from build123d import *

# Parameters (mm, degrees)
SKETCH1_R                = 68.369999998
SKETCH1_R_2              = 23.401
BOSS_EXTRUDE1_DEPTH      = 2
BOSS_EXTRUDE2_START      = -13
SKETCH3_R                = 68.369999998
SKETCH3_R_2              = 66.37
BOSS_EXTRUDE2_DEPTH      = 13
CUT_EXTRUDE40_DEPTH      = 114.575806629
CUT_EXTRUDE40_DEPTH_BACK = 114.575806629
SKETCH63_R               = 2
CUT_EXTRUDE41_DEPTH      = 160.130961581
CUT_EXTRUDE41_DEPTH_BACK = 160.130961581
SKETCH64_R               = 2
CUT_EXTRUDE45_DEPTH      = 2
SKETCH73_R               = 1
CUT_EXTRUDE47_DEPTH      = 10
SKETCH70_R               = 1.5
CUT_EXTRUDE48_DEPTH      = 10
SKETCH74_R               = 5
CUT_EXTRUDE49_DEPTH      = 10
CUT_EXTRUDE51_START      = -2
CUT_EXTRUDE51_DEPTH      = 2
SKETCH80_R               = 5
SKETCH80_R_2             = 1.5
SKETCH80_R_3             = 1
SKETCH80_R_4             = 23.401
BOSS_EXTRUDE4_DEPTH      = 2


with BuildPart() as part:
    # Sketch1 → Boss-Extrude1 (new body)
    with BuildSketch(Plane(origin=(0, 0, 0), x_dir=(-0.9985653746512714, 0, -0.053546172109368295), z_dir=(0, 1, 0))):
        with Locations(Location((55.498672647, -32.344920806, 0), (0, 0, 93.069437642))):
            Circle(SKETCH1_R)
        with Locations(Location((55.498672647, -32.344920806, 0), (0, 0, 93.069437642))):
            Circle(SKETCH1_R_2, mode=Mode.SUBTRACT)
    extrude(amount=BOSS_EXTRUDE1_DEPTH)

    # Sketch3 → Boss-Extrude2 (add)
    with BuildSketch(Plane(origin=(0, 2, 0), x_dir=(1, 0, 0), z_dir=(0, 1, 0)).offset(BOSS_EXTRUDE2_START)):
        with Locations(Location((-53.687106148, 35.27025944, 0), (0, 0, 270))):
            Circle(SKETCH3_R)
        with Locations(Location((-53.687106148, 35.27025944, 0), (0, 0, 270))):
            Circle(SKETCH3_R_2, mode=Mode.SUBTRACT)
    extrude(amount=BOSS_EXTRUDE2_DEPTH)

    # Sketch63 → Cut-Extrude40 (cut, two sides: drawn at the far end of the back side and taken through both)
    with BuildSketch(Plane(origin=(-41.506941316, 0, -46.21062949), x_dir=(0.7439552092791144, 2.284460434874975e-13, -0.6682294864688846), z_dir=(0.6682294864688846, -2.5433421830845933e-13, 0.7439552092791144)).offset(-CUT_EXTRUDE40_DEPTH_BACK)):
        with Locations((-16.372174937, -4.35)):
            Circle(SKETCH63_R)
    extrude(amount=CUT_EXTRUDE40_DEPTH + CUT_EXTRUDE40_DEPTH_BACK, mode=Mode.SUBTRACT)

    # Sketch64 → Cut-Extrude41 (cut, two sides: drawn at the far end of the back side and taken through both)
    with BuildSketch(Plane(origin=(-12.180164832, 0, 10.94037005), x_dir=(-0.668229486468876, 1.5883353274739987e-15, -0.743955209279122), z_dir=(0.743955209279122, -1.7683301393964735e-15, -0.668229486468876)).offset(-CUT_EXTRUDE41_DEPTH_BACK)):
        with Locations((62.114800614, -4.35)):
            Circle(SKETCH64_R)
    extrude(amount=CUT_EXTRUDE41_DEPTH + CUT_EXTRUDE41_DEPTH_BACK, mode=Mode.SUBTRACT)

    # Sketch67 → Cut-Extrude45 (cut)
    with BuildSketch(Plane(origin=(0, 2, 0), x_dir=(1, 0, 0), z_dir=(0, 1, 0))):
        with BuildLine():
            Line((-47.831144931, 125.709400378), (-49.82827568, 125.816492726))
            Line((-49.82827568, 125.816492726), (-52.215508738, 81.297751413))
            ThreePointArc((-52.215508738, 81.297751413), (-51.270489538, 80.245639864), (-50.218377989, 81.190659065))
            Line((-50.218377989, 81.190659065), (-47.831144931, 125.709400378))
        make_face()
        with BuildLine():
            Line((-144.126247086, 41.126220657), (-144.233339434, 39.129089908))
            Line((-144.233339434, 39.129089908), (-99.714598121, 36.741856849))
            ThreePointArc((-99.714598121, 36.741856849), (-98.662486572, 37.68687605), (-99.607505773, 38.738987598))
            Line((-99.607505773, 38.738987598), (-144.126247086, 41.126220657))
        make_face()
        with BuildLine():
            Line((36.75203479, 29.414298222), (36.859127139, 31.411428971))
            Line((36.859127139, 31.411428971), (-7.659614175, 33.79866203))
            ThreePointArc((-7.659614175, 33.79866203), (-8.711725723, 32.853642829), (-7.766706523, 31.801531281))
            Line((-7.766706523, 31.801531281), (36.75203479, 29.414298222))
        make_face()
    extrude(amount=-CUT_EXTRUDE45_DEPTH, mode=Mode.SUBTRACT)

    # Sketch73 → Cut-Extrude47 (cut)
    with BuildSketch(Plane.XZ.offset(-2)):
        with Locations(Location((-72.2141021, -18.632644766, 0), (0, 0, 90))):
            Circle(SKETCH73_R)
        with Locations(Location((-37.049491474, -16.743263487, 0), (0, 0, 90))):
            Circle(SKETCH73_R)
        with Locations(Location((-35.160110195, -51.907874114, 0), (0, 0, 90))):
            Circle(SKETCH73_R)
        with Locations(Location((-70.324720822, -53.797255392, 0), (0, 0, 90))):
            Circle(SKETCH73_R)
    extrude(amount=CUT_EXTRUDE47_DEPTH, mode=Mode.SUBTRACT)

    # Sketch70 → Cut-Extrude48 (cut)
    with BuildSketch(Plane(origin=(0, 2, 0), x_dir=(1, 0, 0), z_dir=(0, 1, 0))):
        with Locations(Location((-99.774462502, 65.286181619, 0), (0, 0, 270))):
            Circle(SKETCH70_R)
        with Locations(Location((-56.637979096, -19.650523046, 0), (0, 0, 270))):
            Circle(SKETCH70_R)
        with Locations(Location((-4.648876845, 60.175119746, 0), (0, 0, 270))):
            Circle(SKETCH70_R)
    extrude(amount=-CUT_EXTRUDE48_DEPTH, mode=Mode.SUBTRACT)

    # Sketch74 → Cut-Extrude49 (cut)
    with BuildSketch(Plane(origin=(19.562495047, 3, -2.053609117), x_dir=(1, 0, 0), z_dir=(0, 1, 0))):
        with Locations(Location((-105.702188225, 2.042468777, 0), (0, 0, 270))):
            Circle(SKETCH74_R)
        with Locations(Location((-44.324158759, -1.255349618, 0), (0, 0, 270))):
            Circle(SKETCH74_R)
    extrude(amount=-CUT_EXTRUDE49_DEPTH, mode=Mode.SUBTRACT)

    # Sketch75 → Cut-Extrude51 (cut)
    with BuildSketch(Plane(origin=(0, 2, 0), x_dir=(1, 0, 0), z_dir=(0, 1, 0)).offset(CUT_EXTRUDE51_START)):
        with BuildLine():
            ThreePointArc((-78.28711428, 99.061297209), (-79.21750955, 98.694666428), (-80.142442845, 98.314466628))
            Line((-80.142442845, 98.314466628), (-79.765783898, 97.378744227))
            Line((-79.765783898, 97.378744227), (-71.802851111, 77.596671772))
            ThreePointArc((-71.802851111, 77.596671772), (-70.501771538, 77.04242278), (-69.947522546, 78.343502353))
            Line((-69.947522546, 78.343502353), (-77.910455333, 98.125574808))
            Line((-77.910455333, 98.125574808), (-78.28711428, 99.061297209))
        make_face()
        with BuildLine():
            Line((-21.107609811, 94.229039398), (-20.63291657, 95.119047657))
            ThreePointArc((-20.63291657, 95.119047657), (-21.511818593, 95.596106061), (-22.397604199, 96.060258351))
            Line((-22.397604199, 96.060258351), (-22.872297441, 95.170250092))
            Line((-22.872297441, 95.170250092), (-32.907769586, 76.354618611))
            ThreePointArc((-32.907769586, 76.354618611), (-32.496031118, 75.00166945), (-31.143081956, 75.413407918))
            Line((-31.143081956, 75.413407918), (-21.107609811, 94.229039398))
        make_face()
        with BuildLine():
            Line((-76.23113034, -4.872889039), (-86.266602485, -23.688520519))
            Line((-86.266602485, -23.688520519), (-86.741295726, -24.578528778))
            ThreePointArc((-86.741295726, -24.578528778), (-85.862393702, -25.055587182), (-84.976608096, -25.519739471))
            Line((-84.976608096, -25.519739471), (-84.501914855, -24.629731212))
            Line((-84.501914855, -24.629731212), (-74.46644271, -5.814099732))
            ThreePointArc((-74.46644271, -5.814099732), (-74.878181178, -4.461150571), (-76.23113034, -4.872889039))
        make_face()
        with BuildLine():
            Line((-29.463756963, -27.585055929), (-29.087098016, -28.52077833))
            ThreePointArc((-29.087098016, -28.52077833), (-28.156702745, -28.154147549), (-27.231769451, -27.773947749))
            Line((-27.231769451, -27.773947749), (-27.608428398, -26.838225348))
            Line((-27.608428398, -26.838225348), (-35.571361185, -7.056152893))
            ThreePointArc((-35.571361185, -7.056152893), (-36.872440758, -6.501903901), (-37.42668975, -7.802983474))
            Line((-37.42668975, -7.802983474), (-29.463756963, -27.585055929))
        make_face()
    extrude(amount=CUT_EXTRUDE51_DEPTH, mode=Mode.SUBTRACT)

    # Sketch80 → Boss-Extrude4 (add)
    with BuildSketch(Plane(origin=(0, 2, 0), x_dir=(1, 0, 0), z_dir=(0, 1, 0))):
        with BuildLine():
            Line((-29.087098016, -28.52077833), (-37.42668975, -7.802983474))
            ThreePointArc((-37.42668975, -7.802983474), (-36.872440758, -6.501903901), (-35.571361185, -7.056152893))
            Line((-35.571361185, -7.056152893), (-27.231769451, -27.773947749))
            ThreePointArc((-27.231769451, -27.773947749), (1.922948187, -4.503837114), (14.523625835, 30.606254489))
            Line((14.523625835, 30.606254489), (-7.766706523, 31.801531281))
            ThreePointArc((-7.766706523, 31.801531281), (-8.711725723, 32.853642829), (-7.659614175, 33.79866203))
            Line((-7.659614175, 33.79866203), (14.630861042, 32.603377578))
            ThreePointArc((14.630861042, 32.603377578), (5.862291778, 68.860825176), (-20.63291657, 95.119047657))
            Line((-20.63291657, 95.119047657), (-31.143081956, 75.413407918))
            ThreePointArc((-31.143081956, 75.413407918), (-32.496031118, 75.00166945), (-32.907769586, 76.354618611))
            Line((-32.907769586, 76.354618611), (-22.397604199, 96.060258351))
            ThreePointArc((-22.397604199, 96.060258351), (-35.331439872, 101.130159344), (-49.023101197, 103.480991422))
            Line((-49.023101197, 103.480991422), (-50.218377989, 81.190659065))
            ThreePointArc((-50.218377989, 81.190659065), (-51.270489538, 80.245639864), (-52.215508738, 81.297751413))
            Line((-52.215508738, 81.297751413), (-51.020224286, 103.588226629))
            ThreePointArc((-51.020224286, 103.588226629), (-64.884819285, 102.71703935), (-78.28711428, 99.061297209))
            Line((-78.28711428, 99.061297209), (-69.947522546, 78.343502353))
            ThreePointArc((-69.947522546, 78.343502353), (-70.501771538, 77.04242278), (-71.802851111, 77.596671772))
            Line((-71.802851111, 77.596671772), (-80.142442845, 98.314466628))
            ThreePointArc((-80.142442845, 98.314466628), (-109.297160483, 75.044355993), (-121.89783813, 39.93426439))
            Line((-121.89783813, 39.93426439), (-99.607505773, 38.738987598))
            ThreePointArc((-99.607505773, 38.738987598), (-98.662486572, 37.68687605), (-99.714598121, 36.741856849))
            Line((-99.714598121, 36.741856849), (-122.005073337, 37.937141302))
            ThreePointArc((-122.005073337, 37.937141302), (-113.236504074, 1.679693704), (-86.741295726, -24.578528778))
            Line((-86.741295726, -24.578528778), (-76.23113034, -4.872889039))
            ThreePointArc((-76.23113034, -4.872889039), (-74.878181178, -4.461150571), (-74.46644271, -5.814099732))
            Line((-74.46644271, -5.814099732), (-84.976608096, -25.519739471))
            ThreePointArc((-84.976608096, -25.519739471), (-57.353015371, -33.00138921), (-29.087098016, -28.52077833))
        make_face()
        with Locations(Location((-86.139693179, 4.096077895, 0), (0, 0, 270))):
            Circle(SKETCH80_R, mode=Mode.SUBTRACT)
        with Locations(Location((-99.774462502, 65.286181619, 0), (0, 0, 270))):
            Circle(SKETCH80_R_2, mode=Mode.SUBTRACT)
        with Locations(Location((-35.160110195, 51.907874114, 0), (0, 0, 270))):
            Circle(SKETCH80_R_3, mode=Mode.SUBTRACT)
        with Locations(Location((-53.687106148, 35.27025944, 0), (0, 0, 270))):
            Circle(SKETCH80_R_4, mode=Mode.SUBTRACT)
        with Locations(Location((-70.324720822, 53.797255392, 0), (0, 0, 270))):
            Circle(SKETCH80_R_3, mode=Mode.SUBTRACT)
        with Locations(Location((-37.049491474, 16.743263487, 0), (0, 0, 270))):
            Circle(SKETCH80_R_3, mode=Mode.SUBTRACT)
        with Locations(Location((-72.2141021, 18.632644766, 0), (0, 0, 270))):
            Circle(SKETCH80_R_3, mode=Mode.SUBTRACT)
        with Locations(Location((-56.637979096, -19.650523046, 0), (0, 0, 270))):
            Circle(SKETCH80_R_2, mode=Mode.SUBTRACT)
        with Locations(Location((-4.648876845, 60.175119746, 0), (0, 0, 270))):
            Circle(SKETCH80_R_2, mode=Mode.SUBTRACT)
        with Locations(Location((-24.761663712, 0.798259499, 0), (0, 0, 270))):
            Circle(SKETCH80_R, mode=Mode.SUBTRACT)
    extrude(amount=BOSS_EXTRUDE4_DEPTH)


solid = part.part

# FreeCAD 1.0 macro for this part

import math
import FreeCAD as App
import Part
import Sketcher
Q = App.Units.Quantity

doc = App.newDocument("Part")
params = doc.addObject("Spreadsheet::Sheet", "Params")
for row, (alias, value) in enumerate([
    ("sketch1_diameter", "136.74 mm"),
    ("pad1_length", "2 mm"),
    ("sketch2_diameter", "136.74 mm"),
    ("sketch2_diameter2", "132.74 mm"),
    ("pad2_length", "13 mm"),
    ("sketch3_diameter", "4 mm"),
    ("sketch4_diameter", "4 mm"),
    ("sketch5_radius", "1 mm"),
    ("pocket3_length", "2 mm"),
    ("sketch6_diameter", "2 mm"),
    ("pocket4_length", "10 mm"),
    ("sketch7_diameter", "3 mm"),
    ("pocket5_length", "10 mm"),
    ("sketch8_diameter", "10 mm"),
    ("pocket6_length", "10 mm"),
    ("sketch9_radius", "1 mm"),
    ("sketch9_radius2", "1 mm"),
    ("sketch9_radius3", "1 mm"),
    ("sketch9_radius4", "1 mm"),
    ("sketch9_radius5", "68.369998 mm"),
    ("pocket7_length", "2 mm"),
    ("sketch10_diameter", "3 mm"),
    ("sketch10_diameter2", "10 mm"),
    ("sketch10_diameter3", "2 mm"),
    ("sketch10_radius", "68.37 mm"),
    ("pad3_length", "2 mm"),
], start=1):
    params.set(f"A{row}", alias)
    params.set(f"B{row}", "=" + value)
    params.setAlias(f"B{row}", alias)

body = doc.addObject("PartDesign::Body", "Body")

# Sketch on XZ plane
sketch1 = body.newObject("Sketcher::SketchObject", "Sketch")
sketch1.AttachmentSupport = (doc.getObject("XZ_Plane"), [""])
sketch1.MapMode = "FlatFace"
sketch1.addGeometry(Part.Circle(App.Vector(-53.687106, -35.270259, 0), App.Vector(0, 0, 1), 68.37), False)
sketch1.addGeometry(Part.Circle(App.Vector(-53.687106, -35.270259, 0), App.Vector(0, 0, 1), 23.401), False)
sketch1.addConstraint(Sketcher.Constraint("Coincident", 1, 3, 0, 3))
sketch1.addConstraint(Sketcher.Constraint("Diameter", 0, Q("136.74 mm")))
sketch1.addConstraint(Sketcher.Constraint("Diameter", 1, Q("46.802 mm")))
sketch1.addConstraint(Sketcher.Constraint("DistanceY", 0, 3, -1, 1, Q("35.270259 mm")))
sketch1.addConstraint(Sketcher.Constraint("DistanceX", 0, 3, -1, 1, Q("53.687106 mm")))
sketch1.setExpression("Constraints[1]", "Params.sketch1_diameter")
pad1 = body.newObject("PartDesign::Pad", "Pad")
pad1.Profile = sketch1
pad1.setExpression("Length", "Params.pad1_length")
pad1.Reversed = True

# Sketch on XZ plane
sketch2 = body.newObject("Sketcher::SketchObject", "Sketch001")
sketch2.AttachmentSupport = (doc.getObject("XZ_Plane"), [""])
sketch2.MapMode = "FlatFace"
sketch2.AttachmentOffset = App.Placement(App.Vector(0, 0, 11), App.Rotation())
sketch2.addGeometry(Part.Circle(App.Vector(-53.687106, -35.270259, 0), App.Vector(0, 0, 1), 68.37), False)
sketch2.addGeometry(Part.Circle(App.Vector(-53.687106, -35.270259, 0), App.Vector(0, 0, 1), 66.37), False)
sketch2.addConstraint(Sketcher.Constraint("Coincident", 1, 3, 0, 3))
sketch2.addConstraint(Sketcher.Constraint("Diameter", 0, Q("136.74 mm")))
sketch2.addConstraint(Sketcher.Constraint("Diameter", 1, Q("132.74 mm")))
sketch2.addConstraint(Sketcher.Constraint("DistanceY", 0, 3, -1, 1, Q("35.270259 mm")))
sketch2.addConstraint(Sketcher.Constraint("DistanceX", 0, 3, -1, 1, Q("53.687106 mm")))
sketch2.setExpression("Constraints[1]", "Params.sketch2_diameter")
sketch2.setExpression("Constraints[2]", "Params.sketch2_diameter2")
pad2 = body.newObject("PartDesign::Pad", "Pad001")
pad2.Profile = sketch2
pad2.setExpression("Length", "Params.pad2_length")
pad2.Reversed = True

# Sketch on an angled plane
sketch3 = body.newObject("Sketcher::SketchObject", "Sketch002")
sketch3.Placement = App.Placement(App.Vector(-41.506941, 0, -46.21063), App.Rotation(App.Vector(0.743955209, 0, -0.668229486), App.Vector(0, 0.999999999, 0), App.Vector(0.668229486, 0, 0.743955209), "ZXY"))
sketch3.addGeometry(Part.Circle(App.Vector(-16.372175, -4.35, 0), App.Vector(0, 0, 1), 2), False)
sketch3.addConstraint(Sketcher.Constraint("Diameter", 0, Q("4 mm")))
sketch3.addConstraint(Sketcher.Constraint("DistanceY", 0, 3, -1, 1, Q("4.35 mm")))
sketch3.addConstraint(Sketcher.Constraint("DistanceX", 0, 3, -1, 1, Q("16.372175 mm")))
sketch3.setExpression("Constraints[0]", "Params.sketch3_diameter")
pocket1 = body.newObject("PartDesign::Pocket", "Pocket")
pocket1.Profile = sketch3
pocket1.Type = "ThroughAll"
pocket1.Midplane = True

# Sketch on an angled plane
sketch4 = body.newObject("Sketcher::SketchObject", "Sketch003")
sketch4.Placement = App.Placement(App.Vector(-12.180165, 0, 10.94037), App.Rotation(App.Vector(-0.668229486, 0, -0.743955209), App.Vector(0, 0.999999999, 0), App.Vector(0.743955209, 0, -0.668229486), "ZXY"))
sketch4.addGeometry(Part.Circle(App.Vector(62.114801, -4.35, 0), App.Vector(0, 0, 1), 2), False)
sketch4.addConstraint(Sketcher.Constraint("Diameter", 0, Q("4 mm")))
sketch4.addConstraint(Sketcher.Constraint("DistanceY", 0, 3, -1, 1, Q("4.35 mm")))
sketch4.addConstraint(Sketcher.Constraint("DistanceX", -1, 1, 0, 3, Q("62.114801 mm")))
sketch4.setExpression("Constraints[0]", "Params.sketch4_diameter")
pocket2 = body.newObject("PartDesign::Pocket", "Pocket001")
pocket2.Profile = sketch4
pocket2.Type = "ThroughAll"
pocket2.Midplane = True

# Sketch on XZ plane
sketch5 = body.newObject("Sketcher::SketchObject", "Sketch004")
sketch5.AttachmentSupport = (doc.getObject("XZ_Plane"), [""])
sketch5.MapMode = "FlatFace"
sketch5.AttachmentOffset = App.Placement(App.Vector(0, 0, -2), App.Rotation())
sketch5.addGeometry(Part.LineSegment(App.Vector(-47.831145, -125.7094, 0), App.Vector(-49.828276, -125.816493, 0)), False)
sketch5.addGeometry(Part.LineSegment(App.Vector(-49.828276, -125.816493, 0), App.Vector(-52.215509, -81.297751, 0)), False)
sketch5.addGeometry(Part.ArcOfCircle(Part.Circle(App.Vector(-51.216943, -81.244205, 0), App.Vector(0, 0, 1), 1), math.radians(3.069438), math.radians(183.069438)), False)
sketch5.addGeometry(Part.LineSegment(App.Vector(-50.218378, -81.190659, 0), App.Vector(-47.831145, -125.7094, 0)), False)
sketch5.addGeometry(Part.LineSegment(App.Vector(-144.126247, -41.126221, 0), App.Vector(-144.233339, -39.12909, 0)), False)
sketch5.addGeometry(Part.LineSegment(App.Vector(-144.233339, -39.12909, 0), App.Vector(-99.714598, -36.741857, 0)), False)
sketch5.addGeometry(Part.ArcOfCircle(Part.Circle(App.Vector(-99.661052, -37.740422, 0), App.Vector(0, 0, 1), 1), math.radians(-86.930562), math.radians(93.069438)), False)
sketch5.addGeometry(Part.LineSegment(App.Vector(-99.607506, -38.738988, 0), App.Vector(-144.126247, -41.126221, 0)), False)
sketch5.addGeometry(Part.LineSegment(App.Vector(36.752035, -29.414298, 0), App.Vector(36.859127, -31.411429, 0)), False)
sketch5.addGeometry(Part.LineSegment(App.Vector(36.859127, -31.411429, 0), App.Vector(-7.659614, -33.798662, 0)), False)
sketch5.addGeometry(Part.ArcOfCircle(Part.Circle(App.Vector(-7.71316, -32.800097, 0), App.Vector(0, 0, 1), 1), math.radians(93.069438), math.radians(273.069438)), False)
sketch5.addGeometry(Part.LineSegment(App.Vector(-7.766707, -31.801531, 0), App.Vector(36.752035, -29.414298, 0)), False)
sketch5.addConstraint(Sketcher.Constraint("Coincident", 0, 2, 1, 1))
sketch5.addConstraint(Sketcher.Constraint("Tangent", 1, 2, 2, 2))
sketch5.addConstraint(Sketcher.Constraint("Tangent", 2, 1, 3, 1))
sketch5.addConstraint(Sketcher.Constraint("Coincident", 3, 2, 0, 1))
sketch5.addConstraint(Sketcher.Constraint("Coincident", 4, 2, 5, 1))
sketch5.addConstraint(Sketcher.Constraint("Tangent", 5, 2, 6, 2))
sketch5.addConstraint(Sketcher.Constraint("Tangent", 6, 1, 7, 1))
sketch5.addConstraint(Sketcher.Constraint("Coincident", 7, 2, 4, 1))
sketch5.addConstraint(Sketcher.Constraint("Coincident", 8, 2, 9, 1))
sketch5.addConstraint(Sketcher.Constraint("Tangent", 9, 2, 10, 2))
sketch5.addConstraint(Sketcher.Constraint("Tangent", 10, 1, 11, 1))
sketch5.addConstraint(Sketcher.Constraint("Coincident", 11, 2, 8, 1))
sketch5.addConstraint(Sketcher.Constraint("Equal", 2, 6))
sketch5.addConstraint(Sketcher.Constraint("Equal", 6, 10))
sketch5.addConstraint(Sketcher.Constraint("Perpendicular", 0, 1))
sketch5.addConstraint(Sketcher.Constraint("Parallel", 1, 3))
sketch5.addConstraint(Sketcher.Constraint("Parallel", 3, 4))
sketch5.addConstraint(Sketcher.Constraint("Perpendicular", 4, 5))
sketch5.addConstraint(Sketcher.Constraint("Parallel", 5, 7))
sketch5.addConstraint(Sketcher.Constraint("Perpendicular", 7, 8))
sketch5.addConstraint(Sketcher.Constraint("Perpendicular", 8, 9))
sketch5.addConstraint(Sketcher.Constraint("Parallel", 9, 11))
sketch5.addConstraint(Sketcher.Constraint("Equal", 3, 5))
sketch5.addConstraint(Sketcher.Constraint("Equal", 7, 9))
sketch5.addConstraint(Sketcher.Constraint("Radius", 2, Q("1 mm")))
sketch5.addConstraint(Sketcher.Constraint("Distance", 1, Q("44.582701 mm")))
sketch5.addConstraint(Sketcher.Constraint("DistanceY", 3, 2, -1, 1, Q("125.7094 mm")))
sketch5.addConstraint(Sketcher.Constraint("DistanceX", 5, 2, -1, 1, Q("99.714598 mm")))
sketch5.addConstraint(Sketcher.Constraint("DistanceY", 11, 2, -1, 1, Q("29.414298 mm")))
sketch5.addConstraint(Sketcher.Constraint("DistanceX", 2, 3, 3, 2, Q("3.385798 mm")))
sketch5.addConstraint(Sketcher.Constraint("DistanceX", 10, 3, -1, 1, Q("7.71316 mm")))
sketch5.addConstraint(Sketcher.Constraint("DistanceX", 1, 2, -1, 1, Q("52.215509 mm")))
sketch5.addConstraint(Sketcher.Constraint("DistanceY", 4, 2, -1, 1, Q("39.12909 mm")))
sketch5.setExpression("Constraints[24]", "Params.sketch5_radius")
pocket3 = body.newObject("PartDesign::Pocket", "Pocket002")
pocket3.Profile = sketch5
pocket3.setExpression("Length", "Params.pocket3_length")
pocket3.Reversed = True

# Sketch on XZ plane
sketch6 = body.newObject("Sketcher::SketchObject", "Sketch005")
sketch6.AttachmentSupport = (doc.getObject("XZ_Plane"), [""])
sketch6.MapMode = "FlatFace"
sketch6.AttachmentOffset = App.Placement(App.Vector(0, 0, -2), App.Rotation())
sketch6.addGeometry(Part.Circle(App.Vector(-72.214102, -18.632645, 0), App.Vector(0, 0, 1), 1), False)
sketch6.addGeometry(Part.Circle(App.Vector(-37.049491, -16.743263, 0), App.Vector(0, 0, 1), 1), False)
sketch6.addGeometry(Part.Circle(App.Vector(-35.16011, -51.907874, 0), App.Vector(0, 0, 1), 1), False)
sketch6.addGeometry(Part.Circle(App.Vector(-70.324721, -53.797255, 0), App.Vector(0, 0, 1), 1), False)
sketch6.addConstraint(Sketcher.Constraint("Equal", 0, 1))
sketch6.addConstraint(Sketcher.Constraint("Equal", 1, 2))
sketch6.addConstraint(Sketcher.Constraint("Equal", 2, 3))
sketch6.addConstraint(Sketcher.Constraint("Diameter", 0, Q("2 mm")))
sketch6.addConstraint(Sketcher.Constraint("DistanceX", 1, 3, -1, 1, Q("37.049491 mm")))
sketch6.addConstraint(Sketcher.Constraint("DistanceX", 2, 3, -1, 1, Q("35.16011 mm")))
sketch6.addConstraint(Sketcher.Constraint("DistanceX", 3, 3, -1, 1, Q("70.324721 mm")))
sketch6.addConstraint(Sketcher.Constraint("DistanceX", 0, 3, 1, 3, Q("35.164611 mm")))
sketch6.addConstraint(Sketcher.Constraint("DistanceY", 0, 3, 1, 3, Q("1.889381 mm")))
sketch6.addConstraint(Sketcher.Constraint("DistanceY", 2, 3, 1, 3, Q("35.164611 mm")))
sketch6.addConstraint(Sketcher.Constraint("DistanceY", 3, 3, 0, 3, Q("35.164611 mm")))
sketch6.addConstraint(Sketcher.Constraint("DistanceY", 0, 3, -1, 1, Q("18.632645 mm")))
sketch6.setExpression("Constraints[3]", "Params.sketch6_diameter")
pocket4 = body.newObject("PartDesign::Pocket", "Pocket003")
pocket4.Profile = sketch6
pocket4.setExpression("Length", "Params.pocket4_length")
pocket4.Reversed = True

# Sketch on XZ plane
sketch7 = body.newObject("Sketcher::SketchObject", "Sketch006")
sketch7.AttachmentSupport = (doc.getObject("XZ_Plane"), [""])
sketch7.MapMode = "FlatFace"
sketch7.AttachmentOffset = App.Placement(App.Vector(0, 0, -2), App.Rotation())
sketch7.addGeometry(Part.Circle(App.Vector(-99.774463, -65.286182, 0), App.Vector(0, 0, 1), 1.5), False)
sketch7.addGeometry(Part.Circle(App.Vector(-56.637979, 19.650523, 0), App.Vector(0, 0, 1), 1.5), False)
sketch7.addGeometry(Part.Circle(App.Vector(-4.648877, -60.17512, 0), App.Vector(0, 0, 1), 1.5), False)
sketch7.addConstraint(Sketcher.Constraint("Equal", 0, 1))
sketch7.addConstraint(Sketcher.Constraint("Equal", 1, 2))
sketch7.addConstraint(Sketcher.Constraint("Diameter", 0, Q("3 mm")))
sketch7.addConstraint(Sketcher.Constraint("DistanceY", 0, 3, -1, 1, Q("65.286182 mm")))
sketch7.addConstraint(Sketcher.Constraint("DistanceX", 1, 3, -1, 1, Q("56.637979 mm")))
sketch7.addConstraint(Sketcher.Constraint("DistanceY", 2, 3, -1, 1, Q("60.17512 mm")))
sketch7.addConstraint(Sketcher.Constraint("DistanceX", 0, 3, -1, 1, Q("99.774463 mm")))
sketch7.addConstraint(Sketcher.Constraint("DistanceY", -1, 1, 1, 3, Q("19.650523 mm")))
sketch7.addConstraint(Sketcher.Constraint("DistanceX", 2, 3, -1, 1, Q("4.648877 mm")))
sketch7.setExpression("Constraints[2]", "Params.sketch7_diameter")
pocket5 = body.newObject("PartDesign::Pocket", "Pocket004")
pocket5.Profile = sketch7
pocket5.setExpression("Length", "Params.pocket5_length")
pocket5.Reversed = True

# Sketch on XZ plane
sketch8 = body.newObject("Sketcher::SketchObject", "Sketch007")
sketch8.AttachmentSupport = (doc.getObject("XZ_Plane"), [""])
sketch8.MapMode = "FlatFace"
sketch8.AttachmentOffset = App.Placement(App.Vector(0, 0, -3), App.Rotation())
sketch8.addGeometry(Part.Circle(App.Vector(-86.139693, -4.096078, 0), App.Vector(0, 0, 1), 5), False)
sketch8.addGeometry(Part.Circle(App.Vector(-24.761664, -0.798259, 0), App.Vector(0, 0, 1), 5), False)
sketch8.addConstraint(Sketcher.Constraint("Equal", 0, 1))
sketch8.addConstraint(Sketcher.Constraint("Diameter", 0, Q("10 mm")))
sketch8.addConstraint(Sketcher.Constraint("DistanceY", 1, 3, -1, 1, Q("0.798259 mm")))
sketch8.addConstraint(Sketcher.Constraint("DistanceX", 0, 3, 1, 3, Q("61.378029 mm")))
sketch8.addConstraint(Sketcher.Constraint("DistanceY", 0, 3, 1, 3, Q("3.297818 mm")))
sketch8.addConstraint(Sketcher.Constraint("DistanceX", 0, 3, -1, 1, Q("86.139693 mm")))
sketch8.setExpression("Constraints[1]", "Params.sketch8_diameter")
pocket6 = body.newObject("PartDesign::Pocket", "Pocket005")
pocket6.Profile = sketch8
pocket6.setExpression("Length", "Params.pocket6_length")
pocket6.Reversed = True

# Sketch on XZ plane
sketch9 = body.newObject("Sketcher::SketchObject", "Sketch008")
sketch9.AttachmentSupport = (doc.getObject("XZ_Plane"), [""])
sketch9.MapMode = "FlatFace"
sketch9.addGeometry(Part.ArcOfCircle(Part.Circle(App.Vector(-53.687104, -35.270254, 0), App.Vector(0, 0, 1), 68.370005), math.radians(-112.764457), math.radians(-111.088347)), False)
sketch9.addGeometry(Part.LineSegment(App.Vector(-80.142443, -98.314467, 0), App.Vector(-79.765784, -97.378744, 0)), False)
sketch9.addGeometry(Part.LineSegment(App.Vector(-79.765784, -97.378744, 0), App.Vector(-71.802851, -77.596672, 0)), False)
sketch9.addGeometry(Part.ArcOfCircle(Part.Circle(App.Vector(-70.875187, -77.970087, 0), App.Vector(0, 0, 1), 1), math.radians(-21.926402), math.radians(158.073598)), False)
sketch9.addGeometry(Part.LineSegment(App.Vector(-69.947523, -78.343502, 0), App.Vector(-77.910455, -98.125575, 0)), False)
sketch9.addGeometry(Part.LineSegment(App.Vector(-77.910455, -98.125575, 0), App.Vector(-78.287114, -99.061297, 0)), False)
sketch9.addGeometry(Part.LineSegment(App.Vector(-21.10761, -94.229039, 0), App.Vector(-20.632917, -95.119048, 0)), False)
sketch9.addGeometry(Part.ArcOfCircle(Part.Circle(App.Vector(-53.687105, -35.270261, 0), App.Vector(0, 0, 1), 68.369998), math.radians(-62.764457), math.radians(-61.088347)), False)
sketch9.addGeometry(Part.LineSegment(App.Vector(-22.397604, -96.060258, 0), App.Vector(-22.872297, -95.17025, 0)), False)
sketch9.addGeometry(Part.LineSegment(App.Vector(-22.872297, -95.17025, 0), App.Vector(-32.90777, -76.354619, 0)), False)
sketch9.addGeometry(Part.ArcOfCircle(Part.Circle(App.Vector(-32.025426, -75.884013, 0), App.Vector(0, 0, 1), 1), math.radians(28.073598), math.radians(208.073598)), False)
sketch9.addGeometry(Part.LineSegment(App.Vector(-31.143082, -75.413408, 0), App.Vector(-21.10761, -94.229039, 0)), False)
sketch9.addGeometry(Part.LineSegment(App.Vector(-76.23113, 4.872889, 0), App.Vector(-86.266602, 23.688521, 0)), False)
sketch9.addGeometry(Part.LineSegment(App.Vector(-86.266602, 23.688521, 0), App.Vector(-86.741296, 24.578529, 0)), False)
sketch9.addGeometry(Part.ArcOfCircle(Part.Circle(App.Vector(-53.687108, -35.270256, 0), App.Vector(0, 0, 1), 68.369996), math.radians(117.235543), math.radians(118.911653)), False)
sketch9.addGeometry(Part.LineSegment(App.Vector(-84.976608, 25.519739, 0), App.Vector(-84.501915, 24.629731, 0)), False)
sketch9.addGeometry(Part.LineSegment(App.Vector(-84.501915, 24.629731, 0), App.Vector(-74.466443, 5.8141, 0)), False)
sketch9.addGeometry(Part.ArcOfCircle(Part.Circle(App.Vector(-75.348787, 5.343494, 0), App.Vector(0, 0, 1), 1), math.radians(-151.926402), math.radians(28.073598)), False)
sketch9.addGeometry(Part.LineSegment(App.Vector(-29.463757, 27.585056, 0), App.Vector(-29.087098, 28.520778, 0)), False)
sketch9.addGeometry(Part.ArcOfCircle(Part.Circle(App.Vector(-53.687107, -35.270261, 0), App.Vector(0, 0, 1), 68.370002), math.radians(67.235543), math.radians(68.911653)), False)
sketch9.addGeometry(Part.LineSegment(App.Vector(-27.231769, 27.773948, 0), App.Vector(-27.608428, 26.838225, 0)), False)
sketch9.addGeometry(Part.LineSegment(App.Vector(-27.608428, 26.838225, 0), App.Vector(-35.571361, 7.056153, 0)), False)
sketch9.addGeometry(Part.ArcOfCircle(Part.Circle(App.Vector(-36.499025, 7.429568, 0), App.Vector(0, 0, 1), 1), math.radians(158.073598), math.radians(338.073598)), False)
sketch9.addGeometry(Part.LineSegment(App.Vector(-37.42669, 7.802983, 0), App.Vector(-29.463757, 27.585056, 0)), False)
sketch9.addConstraint(Sketcher.Constraint("Coincident", 0, 1, 1, 1))
sketch9.addConstraint(Sketcher.Constraint("Coincident", 1, 2, 2, 1))
sketch9.addConstraint(Sketcher.Constraint("Coincident", 2, 2, 3, 2))
sketch9.addConstraint(Sketcher.Constraint("Coincident", 3, 1, 4, 1))
sketch9.addConstraint(Sketcher.Constraint("Coincident", 4, 2, 5, 1))
sketch9.addConstraint(Sketcher.Constraint("Coincident", 5, 2, 0, 2))
sketch9.addConstraint(Sketcher.Constraint("Coincident", 6, 2, 7, 2))
sketch9.addConstraint(Sketcher.Constraint("Coincident", 7, 1, 8, 1))
sketch9.addConstraint(Sketcher.Constraint("Coincident", 8, 2, 9, 1))
sketch9.addConstraint(Sketcher.Constraint("Coincident", 9, 2, 10, 2))
sketch9.addConstraint(Sketcher.Constraint("Coincident", 10, 1, 11, 1))
sketch9.addConstraint(Sketcher.Constraint("Coincident", 11, 2, 6, 1))
sketch9.addConstraint(Sketcher.Constraint("Coincident", 12, 2, 13, 1))
sketch9.addConstraint(Sketcher.Constraint("Coincident", 13, 2, 14, 2))
sketch9.addConstraint(Sketcher.Constraint("Coincident", 14, 1, 15, 1))
sketch9.addConstraint(Sketcher.Constraint("Coincident", 15, 2, 16, 1))
sketch9.addConstraint(Sketcher.Constraint("Coincident", 16, 2, 17, 2))
sketch9.addConstraint(Sketcher.Constraint("Coincident", 17, 1, 12, 1))
sketch9.addConstraint(Sketcher.Constraint("Coincident", 18, 2, 19, 2))
sketch9.addConstraint(Sketcher.Constraint("Coincident", 19, 1, 20, 1))
sketch9.addConstraint(Sketcher.Constraint("Coincident", 20, 2, 21, 1))
sketch9.addConstraint(Sketcher.Constraint("Coincident", 21, 2, 22, 2))
sketch9.addConstraint(Sketcher.Constraint("Coincident", 22, 1, 23, 1))
sketch9.addConstraint(Sketcher.Constraint("Coincident", 23, 2, 18, 1))
sketch9.addConstraint(Sketcher.Constraint("Coincident", 7, 3, 0, 3))
sketch9.addConstraint(Sketcher.Constraint("Coincident", 14, 3, 0, 3))
sketch9.addConstraint(Sketcher.Constraint("Coincident", 19, 3, 0, 3))
sketch9.addConstraint(Sketcher.Constraint("Radius", 3, Q("1 mm")))
sketch9.addConstraint(Sketcher.Constraint("Radius", 10, Q("1 mm")))
sketch9.addConstraint(Sketcher.Constraint("Radius", 17, Q("1 mm")))
sketch9.addConstraint(Sketcher.Constraint("Radius", 22, Q("1 mm")))
sketch9.addConstraint(Sketcher.Constraint("Radius", 7, Q("68.369998 mm")))
sketch9.addConstraint(Sketcher.Constraint("Radius", 19, Q("68.370002 mm")))
sketch9.addConstraint(Sketcher.Constraint("Radius", 0, Q("68.370005 mm")))
sketch9.addConstraint(Sketcher.Constraint("Radius", 14, Q("68.369996 mm")))
sketch9.addConstraint(Sketcher.Constraint("DistanceY", -1, 1, 16, 2, Q("5.8141 mm")))
sketch9.addConstraint(Sketcher.Constraint("DistanceX", 18, 2, -1, 1, Q("29.087098 mm")))
sketch9.addConstraint(Sketcher.Constraint("DistanceX", 17, 3, 3, 3, Q("4.4736 mm")))
sketch9.addConstraint(Sketcher.Constraint("DistanceX", 12, 2, 0, 3, Q("32.579498 mm")))
sketch9.addConstraint(Sketcher.Constraint("DistanceX", 14, 1, 14, 3, Q("31.2895 mm")))
sketch9.addConstraint(Sketcher.Constraint("DistanceY", 7, 3, -1, 1, Q("35.270261 mm")))
sketch9.addConstraint(Sketcher.Constraint("DistanceY", -1, 1, 22, 3, Q("7.429568 mm")))
sketch9.addConstraint(Sketcher.Constraint("DistanceX", 2, 2, -1, 1, Q("71.802851 mm")))
sketch9.addConstraint(Sketcher.Constraint("DistanceY", 2, 2, -1, 1, Q("77.596672 mm")))
sketch9.addConstraint(Sketcher.Constraint("DistanceY", 7, 1, -1, 1, Q("96.060258 mm")))
sketch9.addConstraint(Sketcher.Constraint("DistanceY", 8, 2, -1, 1, Q("95.17025 mm")))
sketch9.addConstraint(Sketcher.Constraint("DistanceX", 9, 2, -1, 1, Q("32.90777 mm")))
sketch9.addConstraint(Sketcher.Constraint("DistanceY", 9, 2, -1, 1, Q("76.354619 mm")))
sketch9.addConstraint(Sketcher.Constraint("DistanceX", 10, 1, -1, 1, Q("31.143082 mm")))
sketch9.addConstraint(Sketcher.Constraint("DistanceX", 11, 2, -1, 1, Q("21.10761 mm")))
sketch9.addConstraint(Sketcher.Constraint("DistanceY", 11, 2, -1, 1, Q("94.229039 mm")))
sketch9.addConstraint(Sketcher.Constraint("DistanceY", -1, 1, 12, 2, Q("23.688521 mm")))
sketch9.addConstraint(Sketcher.Constraint("DistanceY", -1, 1, 13, 2, Q("24.578529 mm")))
sketch9.addConstraint(Sketcher.Constraint("DistanceX", 14, 1, -1, 1, Q("84.976608 mm")))
sketch9.addConstraint(Sketcher.Constraint("DistanceY", -1, 1, 15, 2, Q("24.629731 mm")))
sketch9.addConstraint(Sketcher.Constraint("DistanceX", 17, 1, -1, 1, Q("76.23113 mm")))
sketch9.addConstraint(Sketcher.Constraint("DistanceY", -1, 1, 17, 1, Q("4.872889 mm")))
sketch9.addConstraint(Sketcher.Constraint("DistanceX", 19, 1, -1, 1, Q("27.231769 mm")))
sketch9.addConstraint(Sketcher.Constraint("DistanceX", 20, 2, -1, 1, Q("27.608428 mm")))
sketch9.addConstraint(Sketcher.Constraint("DistanceX", 21, 2, -1, 1, Q("35.571361 mm")))
sketch9.addConstraint(Sketcher.Constraint("DistanceX", 22, 1, -1, 1, Q("37.42669 mm")))
sketch9.addConstraint(Sketcher.Constraint("DistanceX", 3, 3, 7, 3, Q("17.188082 mm")))
sketch9.addConstraint(Sketcher.Constraint("DistanceX", 3, 3, 10, 3, Q("38.849761 mm")))
sketch9.addConstraint(Sketcher.Constraint("DistanceX", 17, 3, 22, 3, Q("38.849761 mm")))
sketch9.addConstraint(Sketcher.Constraint("DistanceY", 0, 1, 3, 3, Q("20.34438 mm")))
sketch9.addConstraint(Sketcher.Constraint("DistanceX", 0, 1, 1, 2, Q("0.376659 mm")))
sketch9.addConstraint(Sketcher.Constraint("DistanceY", 1, 2, 10, 3, Q("21.494731 mm")))
sketch9.addConstraint(Sketcher.Constraint("DistanceX", 2, 2, 3, 1, Q("1.855329 mm")))
sketch9.addConstraint(Sketcher.Constraint("DistanceX", 1, 2, 4, 2, Q("1.855329 mm")))
sketch9.addConstraint(Sketcher.Constraint("DistanceY", 4, 2, 1, 2, Q("0.746831 mm")))
sketch9.addConstraint(Sketcher.Constraint("DistanceX", 5, 2, 4, 2, Q("0.376659 mm")))
sketch9.addConstraint(Sketcher.Constraint("DistanceX", 10, 3, 6, 2, Q("11.392509 mm")))
sketch9.addConstraint(Sketcher.Constraint("DistanceX", 8, 2, 6, 2, Q("2.239381 mm")))
sketch9.addConstraint(Sketcher.Constraint("DistanceX", 13, 2, 15, 2, Q("2.239381 mm")))
sketch9.addConstraint(Sketcher.Constraint("DistanceY", 17, 3, 20, 2, Q("21.494731 mm")))
sketch9.addConstraint(Sketcher.Constraint("DistanceX", 23, 2, 18, 2, Q("0.376659 mm")))
sketch9.addConstraint(Sketcher.Constraint("DistanceY", 20, 2, 23, 2, Q("0.746831 mm")))
sketch9.setExpression("Constraints[27]", "Params.sketch9_radius")
sketch9.setExpression("Constraints[28]", "Params.sketch9_radius2")
sketch9.setExpression("Constraints[29]", "Params.sketch9_radius3")
sketch9.setExpression("Constraints[30]", "Params.sketch9_radius4")
sketch9.setExpression("Constraints[31]", "Params.sketch9_radius5")
pocket7 = body.newObject("PartDesign::Pocket", "Pocket006")
pocket7.Profile = sketch9
pocket7.setExpression("Length", "Params.pocket7_length")

# Sketch on XZ plane
sketch10 = body.newObject("Sketcher::SketchObject", "Sketch009")
sketch10.AttachmentSupport = (doc.getObject("XZ_Plane"), [""])
sketch10.MapMode = "FlatFace"
sketch10.AttachmentOffset = App.Placement(App.Vector(0, 0, -2), App.Rotation())
sketch10.addGeometry(Part.LineSegment(App.Vector(-29.087098, 28.520778, 0), App.Vector(-37.42669, 7.802983, 0)), False)
sketch10.addGeometry(Part.ArcOfCircle(Part.Circle(App.Vector(-36.499025, 7.429568, 0), App.Vector(0, 0, 1), 1), math.radians(158.073598), math.radians(338.073598)), False)
sketch10.addGeometry(Part.LineSegment(App.Vector(-35.571361, 7.056153, 0), App.Vector(-27.231769, 27.773948, 0)), False)
sketch10.addGeometry(Part.ArcOfCircle(Part.Circle(App.Vector(-53.687106, -35.270259, 0), App.Vector(0, 0, 1), 68.37), math.radians(3.911591), math.radians(67.235543)), False)
sketch10.addGeometry(Part.LineSegment(App.Vector(14.523626, -30.606254, 0), App.Vector(-7.766707, -31.801531, 0)), False)
sketch10.addGeometry(Part.ArcOfCircle(Part.Circle(App.Vector(-7.71316, -32.800097, 0), App.Vector(0, 0, 1), 1), math.radians(93.069438), math.radians(273.069438)), False)
sketch10.addGeometry(Part.LineSegment(App.Vector(-7.659614, -33.798662, 0), App.Vector(14.630861, -32.603378, 0)), False)
sketch10.addGeometry(Part.ArcOfCircle(Part.Circle(App.Vector(-53.687106, -35.270259, 0), App.Vector(0, 0, 1), 68.37), math.radians(-61.088347), math.radians(2.235481)), False)
sketch10.addGeometry(Part.LineSegment(App.Vector(-20.632917, -95.119048, 0), App.Vector(-31.143082, -75.413408, 0)), False)
sketch10.addGeometry(Part.ArcOfCircle(Part.Circle(App.Vector(-32.025426, -75.884013, 0), App.Vector(0, 0, 1), 1), math.radians(28.073598), math.radians(208.073598)), False)
sketch10.addGeometry(Part.LineSegment(App.Vector(-32.90777, -76.354619, 0), App.Vector(-22.397604, -96.060258, 0)), False)
sketch10.addGeometry(Part.ArcOfCircle(Part.Circle(App.Vector(-53.687106, -35.270259, 0), App.Vector(0, 0, 1), 68.37), math.radians(-86.088409), math.radians(-62.764457)), False)
sketch10.addGeometry(Part.LineSegment(App.Vector(-49.023101, -103.480991, 0), App.Vector(-50.218378, -81.190659, 0)), False)
sketch10.addGeometry(Part.ArcOfCircle(Part.Circle(App.Vector(-51.216943, -81.244205, 0), App.Vector(0, 0, 1), 1), math.radians(3.069438), math.radians(183.069438)), False)
sketch10.addGeometry(Part.LineSegment(App.Vector(-52.215509, -81.297751, 0), App.Vector(-51.020224, -103.588227, 0)), False)
sketch10.addGeometry(Part.ArcOfCircle(Part.Circle(App.Vector(-53.687106, -35.270259, 0), App.Vector(0, 0, 1), 68.37), math.radians(-111.088347), math.radians(-87.764519)), False)
sketch10.addGeometry(Part.LineSegment(App.Vector(-78.287114, -99.061297, 0), App.Vector(-69.947523, -78.343502, 0)), False)
sketch10.addGeometry(Part.ArcOfCircle(Part.Circle(App.Vector(-70.875187, -77.970087, 0), App.Vector(0, 0, 1), 1), math.radians(-21.926402), math.radians(158.073598)), False)
sketch10.addGeometry(Part.LineSegment(App.Vector(-71.802851, -77.596672, 0), App.Vector(-80.142443, -98.314467, 0)), False)
sketch10.addGeometry(Part.ArcOfCircle(Part.Circle(App.Vector(-53.687106, -35.270259, 0), App.Vector(0, 0, 1), 68.37), math.radians(-176.088409), math.radians(-112.764457)), False)
sketch10.addGeometry(Part.LineSegment(App.Vector(-121.897838, -39.934264, 0), App.Vector(-99.607506, -38.738988, 0)), False)
sketch10.addGeometry(Part.ArcOfCircle(Part.Circle(App.Vector(-99.661052, -37.740422, 0), App.Vector(0, 0, 1), 1), math.radians(-86.930562), math.radians(93.069438)), False)
sketch10.addGeometry(Part.LineSegment(App.Vector(-99.714598, -36.741857, 0), App.Vector(-122.005073, -37.937141, 0)), False)
sketch10.addGeometry(Part.ArcOfCircle(Part.Circle(App.Vector(-53.687106, -35.270259, 0), App.Vector(0, 0, 1), 68.37), math.radians(118.911653), math.radians(182.235481)), False)
sketch10.addGeometry(Part.LineSegment(App.Vector(-86.741296, 24.578529, 0), App.Vector(-76.23113, 4.872889, 0)), False)
sketch10.addGeometry(Part.ArcOfCircle(Part.Circle(App.Vector(-75.348787, 5.343494, 0), App.Vector(0, 0, 1), 1), math.radians(-151.926402), math.radians(28.073598)), False)
sketch10.addGeometry(Part.LineSegment(App.Vector(-74.466443, 5.8141, 0), App.Vector(-84.976608, 25.519739, 0)), False)
sketch10.addGeometry(Part.ArcOfCircle(Part.Circle(App.Vector(-53.687106, -35.270259, 0), App.Vector(0, 0, 1), 68.37), math.radians(68.911653), math.radians(117.235543)), False)
sketch10.addGeometry(Part.Circle(App.Vector(-56.637979, 19.650523, 0), App.Vector(0, 0, 1), 1.5), False)
sketch10.addGeometry(Part.Circle(App.Vector(-86.139693, -4.096078, 0), App.Vector(0, 0, 1), 5), False)
sketch10.addGeometry(Part.Circle(App.Vector(-72.214102, -18.632645, 0), App.Vector(0, 0, 1), 1), False)
sketch10.addGeometry(Part.Circle(App.Vector(-24.761664, -0.798259, 0), App.Vector(0, 0, 1), 5), False)
sketch10.addGeometry(Part.Circle(App.Vector(-37.049491, -16.743263, 0), App.Vector(0, 0, 1), 1), False)
sketch10.addGeometry(Part.Circle(App.Vector(-53.687106, -35.270259, 0), App.Vector(0, 0, 1), 23.401), False)
sketch10.addGeometry(Part.Circle(App.Vector(-99.774463, -65.286182, 0), App.Vector(0, 0, 1), 1.5), False)
sketch10.addGeometry(Part.Circle(App.Vector(-70.324721, -53.797255, 0), App.Vector(0, 0, 1), 1), False)
sketch10.addGeometry(Part.Circle(App.Vector(-35.16011, -51.907874, 0), App.Vector(0, 0, 1), 1), False)
sketch10.addGeometry(Part.Circle(App.Vector(-4.648877, -60.17512, 0), App.Vector(0, 0, 1), 1.5), False)
sketch10.addConstraint(Sketcher.Constraint("Tangent", 0, 2, 1, 1))
sketch10.addConstraint(Sketcher.Constraint("Tangent", 1, 2, 2, 1))
sketch10.addConstraint(Sketcher.Constraint("Coincident", 2, 2, 3, 2))
sketch10.addConstraint(Sketcher.Constraint("Coincident", 3, 1, 4, 1))
sketch10.addConstraint(Sketcher.Constraint("Tangent", 4, 2, 5, 1))
sketch10.addConstraint(Sketcher.Constraint("Tangent", 5, 2, 6, 1))
sketch10.addConstraint(Sketcher.Constraint("Coincident", 6, 2, 7, 2))
sketch10.addConstraint(Sketcher.Constraint("Coincident", 7, 1, 8, 1))
sketch10.addConstraint(Sketcher.Constraint("Tangent", 8, 2, 9, 1))
sketch10.addConstraint(Sketcher.Constraint("Tangent", 9, 2, 10, 1))
sketch10.addConstraint(Sketcher.Constraint("Coincident", 10, 2, 11, 2))
sketch10.addConstraint(Sketcher.Constraint("Coincident", 11, 1, 12, 1))
sketch10.addConstraint(Sketcher.Constraint("Tangent", 12, 2, 13, 1))
sketch10.addConstraint(Sketcher.Constraint("Tangent", 13, 2, 14, 1))
sketch10.addConstraint(Sketcher.Constraint("Coincident", 14, 2, 15, 2))
sketch10.addConstraint(Sketcher.Constraint("Coincident", 15, 1, 16, 1))
sketch10.addConstraint(Sketcher.Constraint("Tangent", 16, 2, 17, 1))
sketch10.addConstraint(Sketcher.Constraint("Tangent", 17, 2, 18, 1))
sketch10.addConstraint(Sketcher.Constraint("Coincident", 18, 2, 19, 2))
sketch10.addConstraint(Sketcher.Constraint("Coincident", 19, 1, 20, 1))
sketch10.addConstraint(Sketcher.Constraint("Tangent", 20, 2, 21, 1))
sketch10.addConstraint(Sketcher.Constraint("Tangent", 21, 2, 22, 1))
sketch10.addConstraint(Sketcher.Constraint("Coincident", 22, 2, 23, 2))
sketch10.addConstraint(Sketcher.Constraint("Coincident", 23, 1, 24, 1))
sketch10.addConstraint(Sketcher.Constraint("Tangent", 24, 2, 25, 1))
sketch10.addConstraint(Sketcher.Constraint("Tangent", 25, 2, 26, 1))
sketch10.addConstraint(Sketcher.Constraint("Coincident", 26, 2, 27, 2))
sketch10.addConstraint(Sketcher.Constraint("Coincident", 27, 1, 0, 1))
sketch10.addConstraint(Sketcher.Constraint("Coincident", 7, 3, 3, 3))
sketch10.addConstraint(Sketcher.Constraint("Coincident", 11, 3, 3, 3))
sketch10.addConstraint(Sketcher.Constraint("Coincident", 15, 3, 3, 3))
sketch10.addConstraint(Sketcher.Constraint("Coincident", 19, 3, 3, 3))
sketch10.addConstraint(Sketcher.Constraint("Coincident", 23, 3, 3, 3))
sketch10.addConstraint(Sketcher.Constraint("Coincident", 27, 3, 3, 3))
sketch10.addConstraint(Sketcher.Constraint("Coincident", 33, 3, 3, 3))
sketch10.addConstraint(Sketcher.Constraint("Equal", 1, 5))
sketch10.addConstraint(Sketcher.Constraint("Equal", 3, 7))
sketch10.addConstraint(Sketcher.Constraint("Equal", 5, 9))
sketch10.addConstraint(Sketcher.Constraint("Equal", 7, 11))
sketch10.addConstraint(Sketcher.Constraint("Equal", 9, 13))
sketch10.addConstraint(Sketcher.Constraint("Equal", 11, 15))
sketch10.addConstraint(Sketcher.Constraint("Equal", 13, 17))
sketch10.addConstraint(Sketcher.Constraint("Equal", 15, 19))
sketch10.addConstraint(Sketcher.Constraint("Equal", 17, 21))
sketch10.addConstraint(Sketcher.Constraint("Equal", 19, 23))
sketch10.addConstraint(Sketcher.Constraint("Equal", 21, 25))
sketch10.addConstraint(Sketcher.Constraint("Equal", 23, 27))
sketch10.addConstraint(Sketcher.Constraint("Equal", 25, 30))
sketch10.addConstraint(Sketcher.Constraint("Equal", 29, 31))
sketch10.addConstraint(Sketcher.Constraint("Equal", 30, 32))
sketch10.addConstraint(Sketcher.Constraint("Equal", 28, 34))
sketch10.addConstraint(Sketcher.Constraint("Equal", 32, 35))
sketch10.addConstraint(Sketcher.Constraint("Equal", 35, 36))
sketch10.addConstraint(Sketcher.Constraint("Equal", 34, 37))
sketch10.addConstraint(Sketcher.Constraint("Parallel", 0, 2))
sketch10.addConstraint(Sketcher.Constraint("Parallel", 4, 6))
sketch10.addConstraint(Sketcher.Constraint("Parallel", 8, 10))
sketch10.addConstraint(Sketcher.Constraint("Perpendicular", 6, 12))
sketch10.addConstraint(Sketcher.Constraint("Parallel", 12, 14))
sketch10.addConstraint(Sketcher.Constraint("Parallel", 2, 16))
sketch10.addConstraint(Sketcher.Constraint("Parallel", 16, 18))
sketch10.addConstraint(Sketcher.Constraint("Perpendicular", 14, 20))
sketch10.addConstraint(Sketcher.Constraint("Parallel", 20, 22))
sketch10.addConstraint(Sketcher.Constraint("Parallel", 10, 24))
sketch10.addConstraint(Sketcher.Constraint("Parallel", 24, 26))
sketch10.addConstraint(Sketcher.Constraint("Equal", 0, 2))
sketch10.addConstraint(Sketcher.Constraint("Equal", 2, 8))
sketch10.addConstraint(Sketcher.Constraint("Equal", 8, 10))
sketch10.addConstraint(Sketcher.Constraint("Equal", 4, 12))
sketch10.addConstraint(Sketcher.Constraint("Equal", 6, 14))
sketch10.addConstraint(Sketcher.Constraint("Equal", 10, 16))
sketch10.addConstraint(Sketcher.Constraint("Equal", 16, 18))
sketch10.addConstraint(Sketcher.Constraint("Equal", 12, 20))
sketch10.addConstraint(Sketcher.Constraint("Equal", 14, 22))
sketch10.addConstraint(Sketcher.Constraint("Equal", 18, 24))
sketch10.addConstraint(Sketcher.Constraint("Equal", 24, 26))
sketch10.addConstraint(Sketcher.Constraint("Diameter", 28, Q("3 mm")))
sketch10.addConstraint(Sketcher.Constraint("Diameter", 29, Q("10 mm")))
sketch10.addConstraint(Sketcher.Constraint("Diameter", 30, Q("2 mm")))
sketch10.addConstraint(Sketcher.Constraint("Radius", 3, Q("68.37 mm")))
sketch10.addConstraint(Sketcher.Constraint("Diameter", 33, Q("46.802 mm")))
sketch10.addConstraint(Sketcher.Constraint("DistanceY", 27, 3, 31, 3, Q("34.472 mm")))
sketch10.addConstraint(Sketcher.Constraint("Distance", 6, Q("22.3225 mm")))
sketch10.addConstraint(Sketcher.Constraint("DistanceX", 11, 1, -1, 1, Q("49.023101 mm")))
sketch10.addConstraint(Sketcher.Constraint("DistanceX", 21, 2, -1, 1, Q("99.714598 mm")))
sketch10.addConstraint(Sketcher.Constraint("DistanceY", -1, 1, 25, 2, Q("5.8141 mm")))
sketch10.addConstraint(Sketcher.Constraint("DistanceX", 27, 1, -1, 1, Q("29.087098 mm")))
sketch10.addConstraint(Sketcher.Constraint("DistanceX", 1, 3, 9, 3, Q("4.4736 mm")))
sketch10.addConstraint(Sketcher.Constraint("DistanceY", 29, 3, 28, 3, Q("23.746601 mm")))
sketch10.addConstraint(Sketcher.Constraint("DistanceX", 0, 2, 32, 3, Q("0.377198 mm")))
sketch10.addConstraint(Sketcher.Constraint("Distance", 0, Q("22.333289 mm")))
sketch10.addConstraint(Sketcher.Constraint("DistanceY", 3, 3, -1, 1, Q("35.270259 mm")))
sketch10.addConstraint(Sketcher.Constraint("DistanceX", 28, 3, -1, 1, Q("56.637979 mm")))
sketch10.addConstraint(Sketcher.Constraint("DistanceY", 34, 3, -1, 1, Q("65.286182 mm")))
sketch10.addConstraint(Sketcher.Constraint("DistanceX", 35, 3, -1, 1, Q("70.324721 mm")))
sketch10.addConstraint(Sketcher.Constraint("DistanceX", 36, 3, -1, 1, Q("35.16011 mm")))
sketch10.addConstraint(Sketcher.Constraint("DistanceY", 37, 3, -1, 1, Q("60.17512 mm")))
sketch10.addConstraint(Sketcher.Constraint("DistanceY", 25, 3, 28, 3, Q("14.307029 mm")))
sketch10.addConstraint(Sketcher.Constraint("DistanceX", 21, 3, 29, 3, Q("13.521359 mm")))
sketch10.addConstraint(Sketcher.Constraint("DistanceX", 29, 3, 30, 3, Q("13.925591 mm")))
sketch10.addConstraint(Sketcher.Constraint("DistanceY", 30, 3, 25, 3, Q("23.976139 mm")))
sketch10.addConstraint(Sketcher.Constraint("DistanceX", 1, 3, 31, 3, Q("11.737362 mm")))
sketch10.addConstraint(Sketcher.Constraint("DistanceY", 32, 3, 1, 3, Q("24.172832 mm")))
sketch10.addConstraint(Sketcher.Constraint("DistanceX", 34, 3, 21, 3, Q("0.113411 mm")))
sketch10.addConstraint(Sketcher.Constraint("DistanceY", 17, 3, 35, 3, Q("24.172832 mm")))
sketch10.addConstraint(Sketcher.Constraint("DistanceY", 9, 3, 36, 3, Q("23.976139 mm")))
sketch10.addConstraint(Sketcher.Constraint("DistanceX", 9, 3, 37, 3, Q("27.376549 mm")))
sketch10.setExpression("Constraints[76]", "Params.sketch10_diameter")
sketch10.setExpression("Constraints[77]", "Params.sketch10_diameter2")
sketch10.setExpression("Constraints[78]", "Params.sketch10_diameter3")
sketch10.setExpression("Constraints[79]", "Params.sketch10_radius")
pad3 = body.newObject("PartDesign::Pad", "Pad002")
pad3.Profile = sketch10
pad3.setExpression("Length", "Params.pad3_length")
pad3.Reversed = True

doc.recompute()
